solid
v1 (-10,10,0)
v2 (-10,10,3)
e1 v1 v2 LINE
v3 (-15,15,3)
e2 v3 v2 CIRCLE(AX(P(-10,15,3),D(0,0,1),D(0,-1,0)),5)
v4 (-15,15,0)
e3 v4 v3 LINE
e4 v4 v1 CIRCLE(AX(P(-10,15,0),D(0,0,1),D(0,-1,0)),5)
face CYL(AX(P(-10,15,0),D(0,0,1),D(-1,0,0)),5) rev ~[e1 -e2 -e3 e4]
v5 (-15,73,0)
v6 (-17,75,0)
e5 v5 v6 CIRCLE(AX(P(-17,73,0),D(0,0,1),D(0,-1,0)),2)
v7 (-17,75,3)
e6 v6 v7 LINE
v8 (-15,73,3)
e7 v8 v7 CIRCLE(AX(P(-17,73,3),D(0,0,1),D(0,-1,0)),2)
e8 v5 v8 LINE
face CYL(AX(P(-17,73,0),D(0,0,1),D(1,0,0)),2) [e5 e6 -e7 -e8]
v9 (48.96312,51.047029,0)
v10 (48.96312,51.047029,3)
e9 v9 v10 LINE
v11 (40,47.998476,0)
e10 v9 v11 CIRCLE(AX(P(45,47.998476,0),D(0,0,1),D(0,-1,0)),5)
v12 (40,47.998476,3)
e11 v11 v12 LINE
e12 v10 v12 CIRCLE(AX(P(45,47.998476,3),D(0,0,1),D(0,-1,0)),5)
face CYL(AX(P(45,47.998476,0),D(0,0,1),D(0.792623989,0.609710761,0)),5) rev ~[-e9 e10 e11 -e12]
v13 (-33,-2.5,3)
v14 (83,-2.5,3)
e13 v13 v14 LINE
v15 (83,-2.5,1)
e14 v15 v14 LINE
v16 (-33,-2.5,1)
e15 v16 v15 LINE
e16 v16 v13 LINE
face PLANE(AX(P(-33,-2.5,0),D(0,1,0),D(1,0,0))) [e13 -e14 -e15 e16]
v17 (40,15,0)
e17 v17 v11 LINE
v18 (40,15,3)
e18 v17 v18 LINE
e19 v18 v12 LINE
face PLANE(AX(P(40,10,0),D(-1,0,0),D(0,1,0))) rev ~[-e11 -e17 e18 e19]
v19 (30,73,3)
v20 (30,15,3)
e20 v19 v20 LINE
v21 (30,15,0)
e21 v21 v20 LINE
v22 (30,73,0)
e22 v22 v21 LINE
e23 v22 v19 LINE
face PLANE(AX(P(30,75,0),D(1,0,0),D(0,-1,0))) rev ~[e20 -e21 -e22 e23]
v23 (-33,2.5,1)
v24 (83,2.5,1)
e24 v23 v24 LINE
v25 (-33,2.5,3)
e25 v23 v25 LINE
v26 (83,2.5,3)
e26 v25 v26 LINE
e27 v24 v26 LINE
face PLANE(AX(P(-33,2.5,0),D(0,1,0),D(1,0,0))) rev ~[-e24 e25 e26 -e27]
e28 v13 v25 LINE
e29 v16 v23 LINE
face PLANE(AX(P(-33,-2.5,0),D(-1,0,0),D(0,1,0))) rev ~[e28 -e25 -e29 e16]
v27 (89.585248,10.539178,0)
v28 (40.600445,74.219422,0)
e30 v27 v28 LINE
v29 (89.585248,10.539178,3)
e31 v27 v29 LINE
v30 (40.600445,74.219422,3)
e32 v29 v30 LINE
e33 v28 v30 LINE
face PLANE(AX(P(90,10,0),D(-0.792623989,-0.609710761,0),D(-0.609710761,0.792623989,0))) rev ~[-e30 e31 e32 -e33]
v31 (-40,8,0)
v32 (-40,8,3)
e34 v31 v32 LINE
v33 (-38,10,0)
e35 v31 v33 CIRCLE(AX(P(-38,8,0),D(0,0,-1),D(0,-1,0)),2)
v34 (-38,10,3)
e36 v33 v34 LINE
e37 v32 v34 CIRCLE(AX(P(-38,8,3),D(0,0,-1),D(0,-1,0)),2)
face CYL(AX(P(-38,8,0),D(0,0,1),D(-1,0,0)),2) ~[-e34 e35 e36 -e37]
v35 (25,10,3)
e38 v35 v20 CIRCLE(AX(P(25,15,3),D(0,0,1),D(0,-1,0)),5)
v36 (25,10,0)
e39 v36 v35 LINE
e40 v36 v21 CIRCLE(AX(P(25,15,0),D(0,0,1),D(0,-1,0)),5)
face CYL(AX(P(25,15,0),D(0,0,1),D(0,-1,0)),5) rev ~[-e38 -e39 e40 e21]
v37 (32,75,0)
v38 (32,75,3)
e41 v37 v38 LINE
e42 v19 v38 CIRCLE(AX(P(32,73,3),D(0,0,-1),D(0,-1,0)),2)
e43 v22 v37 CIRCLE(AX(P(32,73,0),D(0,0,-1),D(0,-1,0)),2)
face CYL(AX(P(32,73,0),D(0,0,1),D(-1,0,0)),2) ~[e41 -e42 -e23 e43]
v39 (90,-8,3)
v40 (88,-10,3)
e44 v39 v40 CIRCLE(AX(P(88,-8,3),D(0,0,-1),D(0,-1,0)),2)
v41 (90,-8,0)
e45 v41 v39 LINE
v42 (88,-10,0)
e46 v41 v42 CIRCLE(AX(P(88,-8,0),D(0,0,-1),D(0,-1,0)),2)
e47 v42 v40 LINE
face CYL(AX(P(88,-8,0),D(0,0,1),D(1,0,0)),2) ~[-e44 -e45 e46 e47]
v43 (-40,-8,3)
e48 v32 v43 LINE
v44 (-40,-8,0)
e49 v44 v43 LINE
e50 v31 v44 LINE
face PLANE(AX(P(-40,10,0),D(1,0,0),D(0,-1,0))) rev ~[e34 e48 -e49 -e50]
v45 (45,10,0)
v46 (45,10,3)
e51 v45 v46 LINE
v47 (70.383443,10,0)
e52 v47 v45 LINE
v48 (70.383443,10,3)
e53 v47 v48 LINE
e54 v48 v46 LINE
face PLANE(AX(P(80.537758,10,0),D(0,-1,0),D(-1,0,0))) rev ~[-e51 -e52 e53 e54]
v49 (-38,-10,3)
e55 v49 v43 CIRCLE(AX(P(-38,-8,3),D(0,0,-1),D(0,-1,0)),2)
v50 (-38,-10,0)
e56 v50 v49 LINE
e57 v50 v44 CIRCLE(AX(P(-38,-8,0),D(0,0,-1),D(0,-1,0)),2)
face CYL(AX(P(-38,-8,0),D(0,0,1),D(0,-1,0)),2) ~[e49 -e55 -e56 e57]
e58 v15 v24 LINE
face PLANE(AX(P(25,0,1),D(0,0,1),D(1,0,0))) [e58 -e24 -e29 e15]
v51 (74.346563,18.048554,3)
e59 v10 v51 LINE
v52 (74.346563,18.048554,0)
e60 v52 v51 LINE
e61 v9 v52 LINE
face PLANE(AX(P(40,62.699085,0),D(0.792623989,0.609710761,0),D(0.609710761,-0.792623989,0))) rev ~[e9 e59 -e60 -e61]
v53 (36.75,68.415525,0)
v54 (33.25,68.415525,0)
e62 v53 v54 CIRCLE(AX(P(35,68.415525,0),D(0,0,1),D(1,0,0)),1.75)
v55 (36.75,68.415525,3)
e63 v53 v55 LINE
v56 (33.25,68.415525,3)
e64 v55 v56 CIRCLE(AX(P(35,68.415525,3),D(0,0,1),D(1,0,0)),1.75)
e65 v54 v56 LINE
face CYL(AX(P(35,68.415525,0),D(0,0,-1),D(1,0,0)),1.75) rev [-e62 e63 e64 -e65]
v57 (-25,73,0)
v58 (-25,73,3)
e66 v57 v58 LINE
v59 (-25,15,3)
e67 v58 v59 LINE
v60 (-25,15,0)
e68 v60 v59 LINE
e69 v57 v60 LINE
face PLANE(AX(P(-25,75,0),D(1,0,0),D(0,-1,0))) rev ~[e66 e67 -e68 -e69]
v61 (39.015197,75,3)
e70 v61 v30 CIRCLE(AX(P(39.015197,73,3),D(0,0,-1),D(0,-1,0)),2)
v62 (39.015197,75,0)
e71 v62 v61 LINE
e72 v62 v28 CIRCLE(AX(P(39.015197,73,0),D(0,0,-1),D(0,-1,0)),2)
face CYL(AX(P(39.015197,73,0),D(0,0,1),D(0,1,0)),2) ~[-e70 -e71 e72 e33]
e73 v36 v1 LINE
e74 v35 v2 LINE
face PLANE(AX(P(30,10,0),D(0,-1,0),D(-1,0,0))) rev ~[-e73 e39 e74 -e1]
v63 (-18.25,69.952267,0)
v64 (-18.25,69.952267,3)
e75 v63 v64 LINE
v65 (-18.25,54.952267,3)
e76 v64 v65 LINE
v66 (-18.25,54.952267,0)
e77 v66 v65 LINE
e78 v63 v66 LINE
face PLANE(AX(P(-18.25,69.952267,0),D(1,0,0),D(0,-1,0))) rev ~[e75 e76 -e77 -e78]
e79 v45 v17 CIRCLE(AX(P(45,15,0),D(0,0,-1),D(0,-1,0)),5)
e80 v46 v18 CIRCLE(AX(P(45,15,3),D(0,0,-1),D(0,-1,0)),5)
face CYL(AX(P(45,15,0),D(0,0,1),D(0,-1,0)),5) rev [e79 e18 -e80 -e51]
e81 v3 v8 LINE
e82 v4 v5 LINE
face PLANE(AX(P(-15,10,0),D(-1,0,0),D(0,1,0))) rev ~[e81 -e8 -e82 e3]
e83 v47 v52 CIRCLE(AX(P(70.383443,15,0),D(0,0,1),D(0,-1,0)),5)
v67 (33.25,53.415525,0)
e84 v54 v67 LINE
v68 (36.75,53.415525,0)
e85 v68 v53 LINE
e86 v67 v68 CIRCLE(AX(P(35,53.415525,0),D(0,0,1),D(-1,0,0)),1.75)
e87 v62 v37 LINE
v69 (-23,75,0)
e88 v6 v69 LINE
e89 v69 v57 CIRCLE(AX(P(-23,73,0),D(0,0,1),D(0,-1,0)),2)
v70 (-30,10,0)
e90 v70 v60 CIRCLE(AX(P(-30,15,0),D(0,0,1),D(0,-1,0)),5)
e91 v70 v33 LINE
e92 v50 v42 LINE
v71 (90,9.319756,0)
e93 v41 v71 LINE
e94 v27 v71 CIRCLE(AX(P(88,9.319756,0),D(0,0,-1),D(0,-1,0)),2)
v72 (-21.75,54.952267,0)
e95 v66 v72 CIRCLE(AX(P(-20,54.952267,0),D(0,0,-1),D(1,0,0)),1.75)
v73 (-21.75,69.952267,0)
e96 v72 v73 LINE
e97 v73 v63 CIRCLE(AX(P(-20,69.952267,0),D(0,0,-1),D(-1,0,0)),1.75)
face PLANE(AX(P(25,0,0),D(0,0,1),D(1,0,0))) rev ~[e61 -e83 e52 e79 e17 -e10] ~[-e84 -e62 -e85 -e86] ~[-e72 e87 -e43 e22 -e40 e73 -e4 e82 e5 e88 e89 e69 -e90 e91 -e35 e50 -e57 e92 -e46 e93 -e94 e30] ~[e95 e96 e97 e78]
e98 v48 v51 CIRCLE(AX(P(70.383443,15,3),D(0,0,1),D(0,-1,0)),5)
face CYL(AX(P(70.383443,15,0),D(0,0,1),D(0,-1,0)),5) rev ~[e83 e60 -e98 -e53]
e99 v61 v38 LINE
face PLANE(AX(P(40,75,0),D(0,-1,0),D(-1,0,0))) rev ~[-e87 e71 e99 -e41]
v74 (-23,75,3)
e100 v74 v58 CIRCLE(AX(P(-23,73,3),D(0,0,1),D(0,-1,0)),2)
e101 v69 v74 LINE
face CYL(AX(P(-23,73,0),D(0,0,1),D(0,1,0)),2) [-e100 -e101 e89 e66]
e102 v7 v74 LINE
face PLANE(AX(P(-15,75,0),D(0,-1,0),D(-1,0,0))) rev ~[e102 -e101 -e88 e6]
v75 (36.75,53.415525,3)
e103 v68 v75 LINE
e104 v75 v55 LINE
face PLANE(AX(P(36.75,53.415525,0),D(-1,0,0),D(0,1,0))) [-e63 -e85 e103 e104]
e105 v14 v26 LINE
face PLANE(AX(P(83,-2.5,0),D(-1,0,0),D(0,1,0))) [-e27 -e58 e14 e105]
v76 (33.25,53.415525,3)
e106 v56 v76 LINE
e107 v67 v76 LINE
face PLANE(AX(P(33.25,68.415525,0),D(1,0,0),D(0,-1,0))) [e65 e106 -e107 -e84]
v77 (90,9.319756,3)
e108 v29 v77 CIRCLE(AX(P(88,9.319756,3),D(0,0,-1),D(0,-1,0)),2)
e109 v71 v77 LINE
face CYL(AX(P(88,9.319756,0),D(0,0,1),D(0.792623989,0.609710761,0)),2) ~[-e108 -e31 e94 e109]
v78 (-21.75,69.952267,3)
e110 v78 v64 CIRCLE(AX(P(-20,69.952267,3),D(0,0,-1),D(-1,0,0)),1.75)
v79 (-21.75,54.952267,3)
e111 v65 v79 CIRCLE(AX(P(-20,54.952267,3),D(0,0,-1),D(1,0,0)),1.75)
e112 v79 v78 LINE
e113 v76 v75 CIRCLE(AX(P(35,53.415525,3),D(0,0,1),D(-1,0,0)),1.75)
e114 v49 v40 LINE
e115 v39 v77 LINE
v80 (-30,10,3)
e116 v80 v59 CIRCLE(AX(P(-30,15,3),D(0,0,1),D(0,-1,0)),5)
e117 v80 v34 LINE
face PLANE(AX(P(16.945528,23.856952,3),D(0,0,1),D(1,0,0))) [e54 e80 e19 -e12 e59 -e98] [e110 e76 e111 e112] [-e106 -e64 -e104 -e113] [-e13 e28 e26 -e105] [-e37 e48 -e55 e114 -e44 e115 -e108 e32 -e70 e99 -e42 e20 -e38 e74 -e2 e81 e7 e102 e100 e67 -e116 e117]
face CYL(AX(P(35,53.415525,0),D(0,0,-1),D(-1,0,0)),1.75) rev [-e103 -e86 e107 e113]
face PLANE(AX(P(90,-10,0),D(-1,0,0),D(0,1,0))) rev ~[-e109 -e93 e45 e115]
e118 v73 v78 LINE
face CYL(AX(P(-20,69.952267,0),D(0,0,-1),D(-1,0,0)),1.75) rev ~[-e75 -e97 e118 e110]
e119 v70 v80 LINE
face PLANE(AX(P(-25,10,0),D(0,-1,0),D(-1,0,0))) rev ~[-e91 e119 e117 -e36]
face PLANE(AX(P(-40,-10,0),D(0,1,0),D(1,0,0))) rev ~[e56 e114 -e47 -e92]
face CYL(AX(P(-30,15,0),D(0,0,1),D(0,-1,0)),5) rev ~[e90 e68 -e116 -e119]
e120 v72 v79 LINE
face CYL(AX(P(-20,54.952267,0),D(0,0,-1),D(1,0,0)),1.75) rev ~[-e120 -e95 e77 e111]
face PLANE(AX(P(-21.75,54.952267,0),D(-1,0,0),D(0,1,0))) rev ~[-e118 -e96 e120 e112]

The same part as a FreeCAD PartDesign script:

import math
import FreeCAD as App
import Part
import Sketcher


def edges_at(feature, points):
    """Names of the edges that pass closest to the given points."""
    edges = feature.Shape.Edges
    near = lambda p: min(range(len(edges)), key=lambda i: edges[i].distToShape(Part.Vertex(*p))[0])
    return sorted({f"Edge{near(p) + 1}" for p in points})


def add_polygon(sketch, points):
    """Adds a closed chain of lines whose ends are joined by coincident constraints."""
    first, n = sketch.GeometryCount, len(points)
    for a, b in zip(points, points[1:] + points[:1]):
        sketch.addGeometry(Part.LineSegment(App.Vector(*a, 0), App.Vector(*b, 0)), False)
    for i in range(n):
        sketch.addConstraint(Sketcher.Constraint("Coincident", first + i, 2, first + (i + 1) % n, 1))

doc = App.newDocument("Part")
body = doc.addObject("PartDesign::Body", "Body")

# Sketch on XY plane
sketch1 = doc.addObject("Sketcher::SketchObject", "Sketch")
body.addObject(sketch1)
sketch1.AttachmentSupport = (doc.XY_Plane, [""])
sketch1.MapMode = "FlatFace"
add_polygon(sketch1, [(-40, 10), (-40, -10), (90, -10), (90, 10), (40, 75), (30, 75), (30, 10), (-15, 10), (-15, 75), (-25, 75), (-25, 10)])  # lines 0-10
add_polygon(sketch1, [(83, -2.5), (-33, -2.5), (-33, 2.5), (83, 2.5)])  # lines 11-14
sketch1.addGeometry(Part.ArcOfCircle(Part.Circle(App.Vector(-20, 70, 0), App.Vector(0, 0, 1), 1.8), math.radians(0), math.radians(180)), False)  # 15
sketch1.addGeometry(Part.LineSegment(App.Vector(-18.2, 70, 0), App.Vector(-18.2, 55, 0)), False)  # 16
sketch1.addGeometry(Part.ArcOfCircle(Part.Circle(App.Vector(-20, 55, 0), App.Vector(0, 0, 1), 1.8), math.radians(180), math.radians(360)), False)  # 17
sketch1.addGeometry(Part.LineSegment(App.Vector(-21.8, 55, 0), App.Vector(-21.8, 70, 0)), False)  # 18
add_polygon(sketch1, [(80.5, 10), (40, 10), (40, 62.7)])  # lines 19-21
sketch1.addGeometry(Part.LineSegment(App.Vector(33.2, 53.4, 0), App.Vector(33.2, 68.4, 0)), False)  # 22
sketch1.addGeometry(Part.ArcOfCircle(Part.Circle(App.Vector(35, 68.4, 0), App.Vector(0, 0, 1), 1.8), math.radians(0), math.radians(180)), False)  # 23
sketch1.addGeometry(Part.LineSegment(App.Vector(36.8, 68.4, 0), App.Vector(36.8, 53.4, 0)), False)  # 24
sketch1.addGeometry(Part.ArcOfCircle(Part.Circle(App.Vector(35, 53.4, 0), App.Vector(0, 0, 1), 1.8), math.radians(180), math.radians(360)), False)  # 25
sketch1.addConstraint([
    Sketcher.Constraint("Tangent", 15, 1, 16, 1),
    Sketcher.Constraint("Tangent", 16, 2, 17, 2),
    Sketcher.Constraint("Tangent", 17, 1, 18, 1),
    Sketcher.Constraint("Tangent", 18, 2, 15, 2),
    Sketcher.Constraint("Tangent", 22, 2, 23, 2),
    Sketcher.Constraint("Tangent", 23, 1, 24, 1),
    Sketcher.Constraint("Tangent", 24, 2, 25, 2),
    Sketcher.Constraint("Tangent", 25, 1, 22, 1),
    Sketcher.Constraint("Vertical", 0),
    Sketcher.Constraint("Horizontal", 1),
    Sketcher.Constraint("Vertical", 2),
    Sketcher.Constraint("Horizontal", 4),
    Sketcher.Constraint("Vertical", 5),
    Sketcher.Constraint("Horizontal", 6),
    Sketcher.Constraint("Vertical", 7),
    Sketcher.Constraint("Horizontal", 8),
    Sketcher.Constraint("Vertical", 9),
    Sketcher.Constraint("Horizontal", 10),
    Sketcher.Constraint("Horizontal", 11),
    Sketcher.Constraint("Vertical", 12),
    Sketcher.Constraint("Horizontal", 13),
    Sketcher.Constraint("Vertical", 14),
    Sketcher.Constraint("Vertical", 16),
    Sketcher.Constraint("Vertical", 18),
    Sketcher.Constraint("Horizontal", 19),
    Sketcher.Constraint("Vertical", 20),
    Sketcher.Constraint("Vertical", 22),
    Sketcher.Constraint("Vertical", 24),
    Sketcher.Constraint("Equal", 17, 23),
    Sketcher.Constraint("Symmetric", 0, 2, 19, 2, -1, 1),
    Sketcher.Constraint("Parallel", 3, 21),
    Sketcher.Constraint("Horizontal", 2, 2, 5, 2),
    Sketcher.Constraint("Horizontal", 4, 2, 7, 2),
    Sketcher.Constraint("Horizontal", 6, 2, 9, 2),
    Sketcher.Constraint("Horizontal", 10, 2, 19, 2),
    Sketcher.Constraint("Vertical", 3, 2, 19, 2),
    Sketcher.Constraint("Equal", 4, 8),
    Sketcher.Constraint("Equal", 10, 16),
    Sketcher.Constraint("Equal", 18, 22),
    Sketcher.Constraint("DistanceX", 1, 1, 1, 2, 130.0),
    Sketcher.Constraint("DistanceX", 4, 2, 4, 1, 10.0),
    Sketcher.Constraint("DistanceX", 6, 2, 6, 1, 45.0),
    Sketcher.Constraint("DistanceX", 10, 2, 10, 1, 15.0),
    Sketcher.Constraint("DistanceX", 11, 2, 11, 1, 116.0),
    Sketcher.Constraint("DistanceY", 0, 2, 0, 1, 20.0),
    Sketcher.Constraint("DistanceY", 5, 2, 5, 1, 65.0),
    Sketcher.Constraint("DistanceY", 12, 1, 12, 2, 5.0),
    Sketcher.Constraint("Radius", 15, 1.75),
    Sketcher.Constraint("DistanceX", 15, 3, -1, 1, 20.0),
    Sketcher.Constraint("DistanceX", -1, 1, 23, 3, 35.0),
    Sketcher.Constraint("DistanceX", 11, 2, -1, 1, 33.0),
    Sketcher.Constraint("DistanceY", 11, 2, -1, 1, 2.5),
    Sketcher.Constraint("DistanceX", 19, 2, 19, 1, 40.537758),
    Sketcher.Constraint("DistanceY", 23, 3, 15, 3, 1.536742),
    Sketcher.Constraint("DistanceY", 20, 2, 23, 3, 5.71644),
])
pad1 = doc.addObject("PartDesign::Pad", "Pad")
body.addObject(pad1)
pad1.Profile = sketch1
pad1.Length = 3

# Sketch on XY plane
sketch2 = doc.addObject("Sketcher::SketchObject", "Sketch001")
body.addObject(sketch2)
sketch2.AttachmentSupport = (doc.XY_Plane, [""])
sketch2.MapMode = "FlatFace"
add_polygon(sketch2, [(-33, 2), (-33, -2), (83, -2), (83, 2)])  # lines 0-3
sketch2.addConstraint([
    Sketcher.Constraint("Vertical", 0),
    Sketcher.Constraint("Horizontal", 1),
    Sketcher.Constraint("Vertical", 2),
    Sketcher.Constraint("Horizontal", 3),
    Sketcher.Constraint("DistanceX", 1, 1, 1, 2, 116.0),
    Sketcher.Constraint("DistanceY", 0, 2, 0, 1, 5.0),
    Sketcher.Constraint("DistanceX", 0, 2, -1, 1, 33.0),
    Sketcher.Constraint("DistanceY", 0, 2, -1, 1, 2.5),
])
pad2 = doc.addObject("PartDesign::Pad", "Pad001")
body.addObject(pad2)
pad2.Profile = sketch2
pad2.Length = 1
doc.recompute()

fillet = doc.addObject("PartDesign::Fillet", "Fillet")
body.addObject(fillet)
fillet.Base = (pad2, edges_at(pad2, [
    (-25, 10, 1.5),
    (-15, 10, 1.5),
    (30, 10, 1.5),
    (40, 10, 1.5),
    (80.538, 10, 1.5),
    (40, 62.699, 1.5),
]))
fillet.Radius = 5
doc.recompute()

fillet2 = doc.addObject("PartDesign::Fillet", "Fillet001")
body.addObject(fillet2)
fillet2.Base = (fillet, edges_at(fillet, [
    (-25, 75, 1.5),
    (-15, 75, 1.5),
    (30, 75, 1.5),
    (40, 75, 1.5),
    (90, 10, 1.5),
    (90, -10, 1.5),
    (-40, -10, 1.5),
    (-40, 10, 1.5),
]))
fillet2.Radius = 2

doc.recompute()
